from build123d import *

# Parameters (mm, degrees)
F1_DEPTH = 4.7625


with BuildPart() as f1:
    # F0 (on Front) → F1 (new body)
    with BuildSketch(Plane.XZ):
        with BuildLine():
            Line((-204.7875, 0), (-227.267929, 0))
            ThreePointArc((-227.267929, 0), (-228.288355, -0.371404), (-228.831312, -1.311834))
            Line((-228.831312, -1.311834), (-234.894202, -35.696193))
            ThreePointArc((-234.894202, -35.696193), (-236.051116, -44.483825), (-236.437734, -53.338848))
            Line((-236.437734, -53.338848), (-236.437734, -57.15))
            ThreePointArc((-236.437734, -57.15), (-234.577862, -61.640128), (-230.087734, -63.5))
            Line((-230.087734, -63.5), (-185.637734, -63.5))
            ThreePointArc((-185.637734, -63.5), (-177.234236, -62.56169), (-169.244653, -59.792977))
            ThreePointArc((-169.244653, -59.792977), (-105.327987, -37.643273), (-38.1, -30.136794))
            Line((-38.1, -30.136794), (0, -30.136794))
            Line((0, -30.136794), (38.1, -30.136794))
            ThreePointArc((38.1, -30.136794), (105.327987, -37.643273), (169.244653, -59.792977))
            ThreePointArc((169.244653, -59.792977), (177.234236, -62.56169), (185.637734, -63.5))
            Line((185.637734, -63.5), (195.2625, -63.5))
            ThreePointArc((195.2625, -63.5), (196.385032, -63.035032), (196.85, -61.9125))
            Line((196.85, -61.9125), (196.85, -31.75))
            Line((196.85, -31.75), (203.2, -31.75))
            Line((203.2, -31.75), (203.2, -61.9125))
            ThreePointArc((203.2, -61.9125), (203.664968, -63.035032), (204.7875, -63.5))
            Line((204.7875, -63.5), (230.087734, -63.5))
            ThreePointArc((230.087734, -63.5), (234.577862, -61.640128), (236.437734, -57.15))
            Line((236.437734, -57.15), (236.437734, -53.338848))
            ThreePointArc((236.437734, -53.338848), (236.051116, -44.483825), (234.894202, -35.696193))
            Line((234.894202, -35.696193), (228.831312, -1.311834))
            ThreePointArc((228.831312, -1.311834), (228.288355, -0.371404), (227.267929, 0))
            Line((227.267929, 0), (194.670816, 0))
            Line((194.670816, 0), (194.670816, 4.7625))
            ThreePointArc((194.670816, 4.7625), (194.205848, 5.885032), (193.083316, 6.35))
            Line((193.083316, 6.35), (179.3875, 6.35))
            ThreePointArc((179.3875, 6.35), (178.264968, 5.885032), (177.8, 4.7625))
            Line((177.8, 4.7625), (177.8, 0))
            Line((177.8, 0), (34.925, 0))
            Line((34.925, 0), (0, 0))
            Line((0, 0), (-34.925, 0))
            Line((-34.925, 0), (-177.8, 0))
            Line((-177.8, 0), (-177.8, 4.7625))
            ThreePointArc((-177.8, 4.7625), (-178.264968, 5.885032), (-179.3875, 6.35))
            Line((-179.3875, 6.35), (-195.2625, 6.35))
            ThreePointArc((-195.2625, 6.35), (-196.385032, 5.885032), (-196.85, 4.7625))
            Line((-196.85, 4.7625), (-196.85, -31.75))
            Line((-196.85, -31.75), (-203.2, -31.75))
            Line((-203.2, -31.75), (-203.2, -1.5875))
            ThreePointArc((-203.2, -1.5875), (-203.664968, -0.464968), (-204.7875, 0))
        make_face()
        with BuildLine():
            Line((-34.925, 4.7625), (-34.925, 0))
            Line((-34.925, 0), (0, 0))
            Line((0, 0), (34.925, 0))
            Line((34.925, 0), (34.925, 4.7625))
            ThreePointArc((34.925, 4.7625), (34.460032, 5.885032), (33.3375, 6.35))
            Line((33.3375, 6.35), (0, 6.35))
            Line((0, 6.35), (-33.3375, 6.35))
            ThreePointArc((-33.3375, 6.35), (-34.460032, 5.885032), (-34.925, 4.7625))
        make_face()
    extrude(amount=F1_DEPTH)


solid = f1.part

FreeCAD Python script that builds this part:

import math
import FreeCAD as App
import Part
import Sketcher
from FreeCAD import Vector
Q = App.Units.Quantity

doc = App.newDocument("Part")
body = doc.addObject("PartDesign::Body", "Body")

# Sketch on XZ plane
sketch1 = body.newObject("Sketcher::SketchObject", "Sketch")
sketch1.AttachmentSupport = (doc.getObject("XZ_Plane"), [""])
sketch1.MapMode = "FlatFace"
sketch1.addGeometry(Part.LineSegment(Vector(-204.7875, 0, 0), Vector(-227.267929, 0, 0)), False)
sketch1.addGeometry(Part.ArcOfCircle(Part.Circle(Vector(-227.267931, -1.587499, 0), Vector(0, 0, 1), 1.587499), math.radians(89.99994), math.radians(170.000056)), False)
sketch1.addGeometry(Part.LineSegment(Vector(-228.831312, -1.311834, 0), Vector(-234.894202, -35.696193, 0)), False)
sketch1.addGeometry(Part.ArcOfCircle(Part.Circle(Vector(-134.837858, -53.338835, 0), Vector(0, 0, 1), 101.599876), math.radians(169.999995), math.radians(180.000007)), False)
sketch1.addGeometry(Part.LineSegment(Vector(-236.437734, -53.338848, 0), Vector(-236.437734, -57.15, 0)), False)
sketch1.addGeometry(Part.ArcOfCircle(Part.Circle(Vector(-230.087734, -57.15, 0), Vector(0, 0, 1), 6.35), math.radians(-179.999998), math.radians(-90.000002)), False)
sketch1.addGeometry(Part.LineSegment(Vector(-230.087734, -63.5, 0), Vector(-185.637734, -63.5, 0)), False)
sketch1.addGeometry(Part.ArcOfCircle(Part.Circle(Vector(-185.637735, -25.399998, 0), Vector(0, 0, 1), 38.100002), math.radians(-89.999998), math.radians(-64.515646)), False)
sketch1.addGeometry(Part.ArcOfCircle(Part.Circle(Vector(-38.099998, -334.936804, 0), Vector(0, 0, 1), 304.80001), math.radians(90), math.radians(115.484354)), False)
sketch1.addGeometry(Part.LineSegment(Vector(-38.1, -30.136794, 0), Vector(38.1, -30.136794, 0)), False)
sketch1.addGeometry(Part.ArcOfCircle(Part.Circle(Vector(38.099998, -334.936804, 0), Vector(0, 0, 1), 304.80001), math.radians(64.515646), math.radians(90)), False)
sketch1.addGeometry(Part.ArcOfCircle(Part.Circle(Vector(185.637735, -25.399998, 0), Vector(0, 0, 1), 38.100002), math.radians(-115.484354), math.radians(-90.000002)), False)
sketch1.addGeometry(Part.LineSegment(Vector(185.637734, -63.5, 0), Vector(195.2625, -63.5, 0)), False)
sketch1.addGeometry(Part.ArcOfCircle(Part.Circle(Vector(195.2625, -61.9125, 0), Vector(0, 0, 1), 1.5875), math.radians(-89.999998), math.radians(-0.000002)), False)
sketch1.addGeometry(Part.LineSegment(Vector(196.85, -61.9125, 0), Vector(196.85, -31.75, 0)), False)
sketch1.addGeometry(Part.LineSegment(Vector(196.85, -31.75, 0), Vector(203.2, -31.75, 0)), False)
sketch1.addGeometry(Part.LineSegment(Vector(203.2, -31.75, 0), Vector(203.2, -61.9125, 0)), False)
sketch1.addGeometry(Part.ArcOfCircle(Part.Circle(Vector(204.7875, -61.9125, 0), Vector(0, 0, 1), 1.5875), math.radians(-179.999998), math.radians(-90.000002)), False)
sketch1.addGeometry(Part.LineSegment(Vector(204.7875, -63.5, 0), Vector(230.087734, -63.5, 0)), False)
sketch1.addGeometry(Part.ArcOfCircle(Part.Circle(Vector(230.087734, -57.15, 0), Vector(0, 0, 1), 6.35), math.radians(-89.999998), math.radians(-0.000002)), False)
sketch1.addGeometry(Part.LineSegment(Vector(236.437734, -57.15, 0), Vector(236.437734, -53.338848, 0)), False)
sketch1.addGeometry(Part.ArcOfCircle(Part.Circle(Vector(134.837858, -53.338835, 0), Vector(0, 0, 1), 101.599876), math.radians(-0.000007), math.radians(10.000005)), False)
sketch1.addGeometry(Part.LineSegment(Vector(234.894202, -35.696193, 0), Vector(228.831312, -1.311834, 0)), False)
sketch1.addGeometry(Part.ArcOfCircle(Part.Circle(Vector(227.267931, -1.587499, 0), Vector(0, 0, 1), 1.587499), math.radians(9.999944), math.radians(90.00006)), False)
sketch1.addGeometry(Part.LineSegment(Vector(227.267929, 0, 0), Vector(194.670816, 0, 0)), False)
sketch1.addGeometry(Part.LineSegment(Vector(194.670816, 0, 0), Vector(194.670816, 4.7625, 0)), False)
sketch1.addGeometry(Part.ArcOfCircle(Part.Circle(Vector(193.083316, 4.7625, 0), Vector(0, 0, 1), 1.5875), math.radians(0.000002), math.radians(89.999998)), False)
sketch1.addGeometry(Part.LineSegment(Vector(193.083316, 6.35, 0), Vector(179.3875, 6.35, 0)), False)
sketch1.addGeometry(Part.ArcOfCircle(Part.Circle(Vector(179.3875, 4.7625, 0), Vector(0, 0, 1), 1.5875), math.radians(90.000002), math.radians(179.999998)), False)
sketch1.addGeometry(Part.LineSegment(Vector(177.8, 4.7625, 0), Vector(177.8, 0, 0)), False)
sketch1.addGeometry(Part.LineSegment(Vector(177.8, 0, 0), Vector(34.925, 0, 0)), False)
sketch1.addGeometry(Part.LineSegment(Vector(34.925, 0, 0), Vector(34.925, 4.7625, 0)), False)
sketch1.addGeometry(Part.ArcOfCircle(Part.Circle(Vector(33.3375, 4.7625, 0), Vector(0, 0, 1), 1.5875), math.radians(0.000002), math.radians(89.999998)), False)
sketch1.addGeometry(Part.LineSegment(Vector(33.3375, 6.35, 0), Vector(-33.3375, 6.35, 0)), False)
sketch1.addGeometry(Part.ArcOfCircle(Part.Circle(Vector(-33.3375, 4.7625, 0), Vector(0, 0, 1), 1.5875), math.radians(90.000002), math.radians(179.999998)), False)
sketch1.addGeometry(Part.LineSegment(Vector(-34.925, 4.7625, 0), Vector(-34.925, 0, 0)), False)
sketch1.addGeometry(Part.LineSegment(Vector(-34.925, 0, 0), Vector(-177.8, 0, 0)), False)
sketch1.addGeometry(Part.LineSegment(Vector(-177.8, 0, 0), Vector(-177.8, 4.7625, 0)), False)
sketch1.addGeometry(Part.ArcOfCircle(Part.Circle(Vector(-179.3875, 4.7625, 0), Vector(0, 0, 1), 1.5875), math.radians(0.000002), math.radians(89.999998)), False)
sketch1.addGeometry(Part.LineSegment(Vector(-179.3875, 6.35, 0), Vector(-195.2625, 6.35, 0)), False)
sketch1.addGeometry(Part.ArcOfCircle(Part.Circle(Vector(-195.2625, 4.7625, 0), Vector(0, 0, 1), 1.5875), math.radians(90.000002), math.radians(179.999998)), False)
sketch1.addGeometry(Part.LineSegment(Vector(-196.85, 4.7625, 0), Vector(-196.85, -31.75, 0)), False)
sketch1.addGeometry(Part.LineSegment(Vector(-196.85, -31.75, 0), Vector(-203.2, -31.75, 0)), False)
sketch1.addGeometry(Part.LineSegment(Vector(-203.2, -31.75, 0), Vector(-203.2, -1.5875, 0)), False)
sketch1.addGeometry(Part.ArcOfCircle(Part.Circle(Vector(-204.7875, -1.5875, 0), Vector(0, 0, 1), 1.5875), math.radians(0.000002), math.radians(89.999998)), False)
sketch1.addConstraint(Sketcher.Constraint("Coincident", 0, 2, 1, 1))
sketch1.addConstraint(Sketcher.Constraint("Coincident", 1, 2, 2, 1))
sketch1.addConstraint(Sketcher.Constraint("Coincident", 2, 2, 3, 1))
sketch1.addConstraint(Sketcher.Constraint("Coincident", 3, 2, 4, 1))
sketch1.addConstraint(Sketcher.Constraint("Coincident", 4, 2, 5, 1))
sketch1.addConstraint(Sketcher.Constraint("Coincident", 5, 2, 6, 1))
sketch1.addConstraint(Sketcher.Constraint("Coincident", 6, 2, 7, 1))
sketch1.addConstraint(Sketcher.Constraint("Coincident", 7, 2, 8, 2))
sketch1.addConstraint(Sketcher.Constraint("Coincident", 8, 1, 9, 1))
sketch1.addConstraint(Sketcher.Constraint("Coincident", 9, 2, 10, 2))
sketch1.addConstraint(Sketcher.Constraint("Coincident", 10, 1, 11, 1))
sketch1.addConstraint(Sketcher.Constraint("Coincident", 11, 2, 12, 1))
sketch1.addConstraint(Sketcher.Constraint("Coincident", 12, 2, 13, 1))
sketch1.addConstraint(Sketcher.Constraint("Coincident", 13, 2, 14, 1))
sketch1.addConstraint(Sketcher.Constraint("Coincident", 14, 2, 15, 1))
sketch1.addConstraint(Sketcher.Constraint("Coincident", 15, 2, 16, 1))
sketch1.addConstraint(Sketcher.Constraint("Coincident", 16, 2, 17, 1))
sketch1.addConstraint(Sketcher.Constraint("Coincident", 17, 2, 18, 1))
sketch1.addConstraint(Sketcher.Constraint("Coincident", 18, 2, 19, 1))
sketch1.addConstraint(Sketcher.Constraint("Coincident", 19, 2, 20, 1))
sketch1.addConstraint(Sketcher.Constraint("Coincident", 20, 2, 21, 1))
sketch1.addConstraint(Sketcher.Constraint("Coincident", 21, 2, 22, 1))
sketch1.addConstraint(Sketcher.Constraint("Coincident", 22, 2, 23, 1))
sketch1.addConstraint(Sketcher.Constraint("Coincident", 23, 2, 24, 1))
sketch1.addConstraint(Sketcher.Constraint("Coincident", 24, 2, 25, 1))
sketch1.addConstraint(Sketcher.Constraint("Coincident", 25, 2, 26, 1))
sketch1.addConstraint(Sketcher.Constraint("Coincident", 26, 2, 27, 1))
sketch1.addConstraint(Sketcher.Constraint("Coincident", 27, 2, 28, 1))
sketch1.addConstraint(Sketcher.Constraint("Coincident", 28, 2, 29, 1))
sketch1.addConstraint(Sketcher.Constraint("Coincident", 29, 2, 30, 1))
sketch1.addConstraint(Sketcher.Constraint("Coincident", 30, 2, 31, 1))
sketch1.addConstraint(Sketcher.Constraint("Coincident", 31, 2, 32, 1))
sketch1.addConstraint(Sketcher.Constraint("Coincident", 32, 2, 33, 1))
sketch1.addConstraint(Sketcher.Constraint("Coincident", 33, 2, 34, 1))
sketch1.addConstraint(Sketcher.Constraint("Coincident", 34, 2, 35, 1))
sketch1.addConstraint(Sketcher.Constraint("Coincident", 35, 2, 36, 1))
sketch1.addConstraint(Sketcher.Constraint("Coincident", 36, 2, 37, 1))
sketch1.addConstraint(Sketcher.Constraint("Coincident", 37, 2, 38, 1))
sketch1.addConstraint(Sketcher.Constraint("Coincident", 38, 2, 39, 1))
sketch1.addConstraint(Sketcher.Constraint("Coincident", 39, 2, 40, 1))
sketch1.addConstraint(Sketcher.Constraint("Coincident", 40, 2, 41, 1))
sketch1.addConstraint(Sketcher.Constraint("Coincident", 41, 2, 42, 1))
sketch1.addConstraint(Sketcher.Constraint("Coincident", 42, 2, 43, 1))
sketch1.addConstraint(Sketcher.Constraint("Coincident", 43, 2, 44, 1))
sketch1.addConstraint(Sketcher.Constraint("Coincident", 44, 2, 0, 1))
sketch1.addConstraint(Sketcher.Constraint("Horizontal", 0))
sketch1.addConstraint(Sketcher.Constraint("Vertical", 4))
sketch1.addConstraint(Sketcher.Constraint("Horizontal", 6))
sketch1.addConstraint(Sketcher.Constraint("Horizontal", 9))
sketch1.addConstraint(Sketcher.Constraint("Horizontal", 12))
sketch1.addConstraint(Sketcher.Constraint("Vertical", 14))
sketch1.addConstraint(Sketcher.Constraint("Horizontal", 15))
sketch1.addConstraint(Sketcher.Constraint("Vertical", 16))
sketch1.addConstraint(Sketcher.Constraint("Horizontal", 18))
sketch1.addConstraint(Sketcher.Constraint("Vertical", 20))
sketch1.addConstraint(Sketcher.Constraint("Horizontal", 24))
sketch1.addConstraint(Sketcher.Constraint("Vertical", 25))
sketch1.addConstraint(Sketcher.Constraint("Horizontal", 27))
sketch1.addConstraint(Sketcher.Constraint("Vertical", 29))
sketch1.addConstraint(Sketcher.Constraint("Horizontal", 30))
sketch1.addConstraint(Sketcher.Constraint("Vertical", 31))
sketch1.addConstraint(Sketcher.Constraint("Horizontal", 33))
sketch1.addConstraint(Sketcher.Constraint("Vertical", 35))
sketch1.addConstraint(Sketcher.Constraint("Horizontal", 36))
sketch1.addConstraint(Sketcher.Constraint("Vertical", 37))
sketch1.addConstraint(Sketcher.Constraint("Horizontal", 39))
sketch1.addConstraint(Sketcher.Constraint("Vertical", 41))
sketch1.addConstraint(Sketcher.Constraint("Horizontal", 42))
sketch1.addConstraint(Sketcher.Constraint("Vertical", 43))
sketch1.addConstraint(Sketcher.Constraint("PointOnObject", 0, 2, -1))
sketch1.addConstraint(Sketcher.Constraint("PointOnObject", 23, 2, -1))
sketch1.addConstraint(Sketcher.Constraint("PointOnObject", 29, 2, -1))
sketch1.addConstraint(Sketcher.Constraint("PointOnObject", 35, 2, -1))
sketch1.addConstraint(Sketcher.Constraint("Radius", 7, Q("1.5000001 in")))
sketch1.addConstraint(Sketcher.Constraint("Radius", 11, Q("1.5000001 in")))
sketch1.addConstraint(Sketcher.Constraint("DistanceX", 9, 1, 9, 2, Q("3 in")))
sketch1.addConstraint(Sketcher.Constraint("Radius", 5, Q("0.25 in")))
sketch1.addConstraint(Sketcher.Constraint("Radius", 19, Q("0.25 in")))
sketch1.addConstraint(Sketcher.Constraint("DistanceY", 7, 3, -1, 1, Q("0.9999999 in")))
sketch1.addConstraint(Sketcher.Constraint("DistanceY", 11, 3, -1, 1, Q("0.9999999 in")))
sketch1.addConstraint(Sketcher.Constraint("DistanceX", -1, 1, 15, 2, Q("8 in")))
sketch1.addConstraint(Sketcher.Constraint("DistanceX", -1, 1, 28, 2, Q("7 in")))
sketch1.addConstraint(Sketcher.Constraint("DistanceX", 36, 2, -1, 1, Q("7 in")))
sketch1.addConstraint(Sketcher.Constraint("DistanceX", 42, 2, -1, 1, Q("8 in")))
sketch1.addConstraint(Sketcher.Constraint("Radius", 1, Q("0.0625 in")))
sketch1.addConstraint(Sketcher.Constraint("Radius", 13, Q("0.0625 in")))
sketch1.addConstraint(Sketcher.Constraint("Radius", 17, Q("0.0625 in")))
sketch1.addConstraint(Sketcher.Constraint("Radius", 23, Q("0.0625 in")))
sketch1.addConstraint(Sketcher.Constraint("Radius", 26, Q("0.0625 in")))
sketch1.addConstraint(Sketcher.Constraint("Radius", 28, Q("0.0625 in")))
sketch1.addConstraint(Sketcher.Constraint("Radius", 32, Q("0.0625 in")))
sketch1.addConstraint(Sketcher.Constraint("Radius", 34, Q("0.0625 in")))
sketch1.addConstraint(Sketcher.Constraint("Radius", 38, Q("0.0625 in")))
sketch1.addConstraint(Sketcher.Constraint("Radius", 40, Q("0.0625 in")))
sketch1.addConstraint(Sketcher.Constraint("Radius", 44, Q("0.0625 in")))
sketch1.addConstraint(Sketcher.Constraint("DistanceX", 6, 1, 6, 2, Q("1.75 in")))
sketch1.addConstraint(Sketcher.Constraint("DistanceX", 15, 1, 15, 2, Q("0.25 in")))
sketch1.addConstraint(Sketcher.Constraint("DistanceX", 42, 2, 42, 1, Q("0.25 in")))
sketch1.addConstraint(Sketcher.Constraint("DistanceX", 8, 3, -1, 1, Q("1.4999999 in")))
sketch1.addConstraint(Sketcher.Constraint("DistanceX", -1, 1, 10, 3, Q("1.4999999 in")))
sketch1.addConstraint(Sketcher.Constraint("DistanceX", 8, 1, -1, 1, Q("1.5 in")))
sketch1.addConstraint(Sketcher.Constraint("DistanceY", 17, 2, -1, 1, Q("2.5 in")))
sketch1.addConstraint(Sketcher.Constraint("DistanceX", 30, 2, 30, 1, Q("5.625 in")))
sketch1.addConstraint(Sketcher.Constraint("DistanceX", 33, 2, 33, 1, Q("2.625 in")))
sketch1.addConstraint(Sketcher.Constraint("DistanceX", 36, 2, 36, 1, Q("5.625 in")))
sketch1.addConstraint(Sketcher.Constraint("DistanceX", 39, 2, 39, 1, Q("0.625 in")))
sketch1.addConstraint(Sketcher.Constraint("DistanceY", 14, 1, 14, 2, Q("1.1875 in")))
sketch1.addConstraint(Sketcher.Constraint("DistanceY", 16, 2, 16, 1, Q("1.1875 in")))
sketch1.addConstraint(Sketcher.Constraint("DistanceY", 25, 1, 25, 2, Q("0.1875 in")))
sketch1.addConstraint(Sketcher.Constraint("DistanceY", 29, 2, 29, 1, Q("0.1875 in")))
sketch1.addConstraint(Sketcher.Constraint("DistanceY", 31, 1, 31, 2, Q("0.1875 in")))
sketch1.addConstraint(Sketcher.Constraint("DistanceY", 35, 2, 35, 1, Q("0.1875 in")))
sketch1.addConstraint(Sketcher.Constraint("DistanceY", 37, 1, 37, 2, Q("0.1875 in")))
sketch1.addConstraint(Sketcher.Constraint("DistanceY", 41, 2, 41, 1, Q("1.4375 in")))
sketch1.addConstraint(Sketcher.Constraint("DistanceY", 43, 1, 43, 2, Q("1.1875 in")))
sketch1.addConstraint(Sketcher.Constraint("DistanceY", 4, 2, -1, 1, Q("2.25 in")))
sketch1.addConstraint(Sketcher.Constraint("DistanceY", 14, 2, -1, 1, Q("1.25 in")))
sketch1.addConstraint(Sketcher.Constraint("DistanceY", 19, 2, -1, 1, Q("2.25 in")))
sketch1.addConstraint(Sketcher.Constraint("DistanceY", -1, 1, 26, 2, Q("0.25 in")))
sketch1.addConstraint(Sketcher.Constraint("DistanceY", -1, 1, 32, 2, Q("0.25 in")))
sketch1.addConstraint(Sketcher.Constraint("DistanceY", -1, 1, 38, 2, Q("0.25 in")))
sketch1.addConstraint(Sketcher.Constraint("DistanceY", 41, 2, -1, 1, Q("1.25 in")))
sketch1.addConstraint(Sketcher.Constraint("DistanceX", -1, 1, 12, 2, Q("7.6875 in")))
sketch1.addConstraint(Sketcher.Constraint("DistanceX", -1, 1, 17, 2, Q("8.0625 in")))
sketch1.addConstraint(Sketcher.Constraint("DistanceX", -1, 1, 27, 2, Q("7.0625 in")))
sketch1.addConstraint(Sketcher.Constraint("DistanceX", -1, 1, 32, 2, Q("1.3125 in")))
sketch1.addConstraint(Sketcher.Constraint("DistanceX", 38, 2, -1, 1, Q("7.0625 in")))
sketch1.addConstraint(Sketcher.Constraint("DistanceX", 44, 2, -1, 1, Q("8.0625 in")))
sketch1.addConstraint(Sketcher.Constraint("Radius", 8, 304.80001))
sketch1.addConstraint(Sketcher.Constraint("Radius", 10, 304.80001))
sketch1.addConstraint(Sketcher.Constraint("Radius", 3, 101.599876))
sketch1.addConstraint(Sketcher.Constraint("Radius", 21, 101.599876))
sketch1.addConstraint(Sketcher.Constraint("DistanceX", 0, 2, 0, 1, 22.480429))
sketch1.addConstraint(Sketcher.Constraint("DistanceY", 4, 2, 4, 1, 3.811152))
sketch1.addConstraint(Sketcher.Constraint("DistanceY", 20, 1, 20, 2, 3.811152))
sketch1.addConstraint(Sketcher.Constraint("DistanceX", 2, 2, -1, 1, 234.894202))
sketch1.addConstraint(Sketcher.Constraint("DistanceX", 12, 1, 12, 2, 9.624766))
sketch1.addConstraint(Sketcher.Constraint("DistanceX", 18, 1, 18, 2, 25.300234))
sketch1.addConstraint(Sketcher.Constraint("DistanceX", 24, 2, 24, 1, 32.597113))
sketch1.addConstraint(Sketcher.Constraint("DistanceX", 27, 2, 27, 1, 13.695816))
sketch1.addConstraint(Sketcher.Constraint("DistanceX", 1, 3, -1, 1, 227.267931))
sketch1.addConstraint(Sketcher.Constraint("DistanceX", -1, 1, 23, 3, 227.267931))
sketch1.addConstraint(Sketcher.Constraint("DistanceX", 1, 2, -1, 1, 228.831312))
sketch1.addConstraint(Sketcher.Constraint("DistanceX", -1, 1, 22, 2, 228.831312))
sketch1.addConstraint(Sketcher.Constraint("DistanceX", -1, 1, 23, 2, 227.267929))
sketch1.addConstraint(Sketcher.Constraint("Distance", 2, 34.914793))
sketch1.addConstraint(Sketcher.Constraint("Distance", 22, 34.914793))
sketch1.addConstraint(Sketcher.Constraint("DistanceX", 3, 3, -1, 1, 134.837858))
sketch1.addConstraint(Sketcher.Constraint("DistanceX", 7, 3, -1, 1, 185.637735))
sketch1.addConstraint(Sketcher.Constraint("DistanceX", -1, 1, 19, 3, 230.087734))
sketch1.addConstraint(Sketcher.Constraint("DistanceY", 21, 3, -1, 1, 53.338835))
sketch1.addConstraint(Sketcher.Constraint("DistanceX", 5, 2, -1, 1, 230.087734))
sketch1.addConstraint(Sketcher.Constraint("DistanceX", 7, 2, -1, 1, 169.244653))
sketch1.addConstraint(Sketcher.Constraint("DistanceX", -1, 1, 10, 1, 169.244653))
pad1 = body.newObject("PartDesign::Pad", "Pad")
pad1.Profile = sketch1
pad1.Length = Q("0.1875 in")

doc.recompute()
